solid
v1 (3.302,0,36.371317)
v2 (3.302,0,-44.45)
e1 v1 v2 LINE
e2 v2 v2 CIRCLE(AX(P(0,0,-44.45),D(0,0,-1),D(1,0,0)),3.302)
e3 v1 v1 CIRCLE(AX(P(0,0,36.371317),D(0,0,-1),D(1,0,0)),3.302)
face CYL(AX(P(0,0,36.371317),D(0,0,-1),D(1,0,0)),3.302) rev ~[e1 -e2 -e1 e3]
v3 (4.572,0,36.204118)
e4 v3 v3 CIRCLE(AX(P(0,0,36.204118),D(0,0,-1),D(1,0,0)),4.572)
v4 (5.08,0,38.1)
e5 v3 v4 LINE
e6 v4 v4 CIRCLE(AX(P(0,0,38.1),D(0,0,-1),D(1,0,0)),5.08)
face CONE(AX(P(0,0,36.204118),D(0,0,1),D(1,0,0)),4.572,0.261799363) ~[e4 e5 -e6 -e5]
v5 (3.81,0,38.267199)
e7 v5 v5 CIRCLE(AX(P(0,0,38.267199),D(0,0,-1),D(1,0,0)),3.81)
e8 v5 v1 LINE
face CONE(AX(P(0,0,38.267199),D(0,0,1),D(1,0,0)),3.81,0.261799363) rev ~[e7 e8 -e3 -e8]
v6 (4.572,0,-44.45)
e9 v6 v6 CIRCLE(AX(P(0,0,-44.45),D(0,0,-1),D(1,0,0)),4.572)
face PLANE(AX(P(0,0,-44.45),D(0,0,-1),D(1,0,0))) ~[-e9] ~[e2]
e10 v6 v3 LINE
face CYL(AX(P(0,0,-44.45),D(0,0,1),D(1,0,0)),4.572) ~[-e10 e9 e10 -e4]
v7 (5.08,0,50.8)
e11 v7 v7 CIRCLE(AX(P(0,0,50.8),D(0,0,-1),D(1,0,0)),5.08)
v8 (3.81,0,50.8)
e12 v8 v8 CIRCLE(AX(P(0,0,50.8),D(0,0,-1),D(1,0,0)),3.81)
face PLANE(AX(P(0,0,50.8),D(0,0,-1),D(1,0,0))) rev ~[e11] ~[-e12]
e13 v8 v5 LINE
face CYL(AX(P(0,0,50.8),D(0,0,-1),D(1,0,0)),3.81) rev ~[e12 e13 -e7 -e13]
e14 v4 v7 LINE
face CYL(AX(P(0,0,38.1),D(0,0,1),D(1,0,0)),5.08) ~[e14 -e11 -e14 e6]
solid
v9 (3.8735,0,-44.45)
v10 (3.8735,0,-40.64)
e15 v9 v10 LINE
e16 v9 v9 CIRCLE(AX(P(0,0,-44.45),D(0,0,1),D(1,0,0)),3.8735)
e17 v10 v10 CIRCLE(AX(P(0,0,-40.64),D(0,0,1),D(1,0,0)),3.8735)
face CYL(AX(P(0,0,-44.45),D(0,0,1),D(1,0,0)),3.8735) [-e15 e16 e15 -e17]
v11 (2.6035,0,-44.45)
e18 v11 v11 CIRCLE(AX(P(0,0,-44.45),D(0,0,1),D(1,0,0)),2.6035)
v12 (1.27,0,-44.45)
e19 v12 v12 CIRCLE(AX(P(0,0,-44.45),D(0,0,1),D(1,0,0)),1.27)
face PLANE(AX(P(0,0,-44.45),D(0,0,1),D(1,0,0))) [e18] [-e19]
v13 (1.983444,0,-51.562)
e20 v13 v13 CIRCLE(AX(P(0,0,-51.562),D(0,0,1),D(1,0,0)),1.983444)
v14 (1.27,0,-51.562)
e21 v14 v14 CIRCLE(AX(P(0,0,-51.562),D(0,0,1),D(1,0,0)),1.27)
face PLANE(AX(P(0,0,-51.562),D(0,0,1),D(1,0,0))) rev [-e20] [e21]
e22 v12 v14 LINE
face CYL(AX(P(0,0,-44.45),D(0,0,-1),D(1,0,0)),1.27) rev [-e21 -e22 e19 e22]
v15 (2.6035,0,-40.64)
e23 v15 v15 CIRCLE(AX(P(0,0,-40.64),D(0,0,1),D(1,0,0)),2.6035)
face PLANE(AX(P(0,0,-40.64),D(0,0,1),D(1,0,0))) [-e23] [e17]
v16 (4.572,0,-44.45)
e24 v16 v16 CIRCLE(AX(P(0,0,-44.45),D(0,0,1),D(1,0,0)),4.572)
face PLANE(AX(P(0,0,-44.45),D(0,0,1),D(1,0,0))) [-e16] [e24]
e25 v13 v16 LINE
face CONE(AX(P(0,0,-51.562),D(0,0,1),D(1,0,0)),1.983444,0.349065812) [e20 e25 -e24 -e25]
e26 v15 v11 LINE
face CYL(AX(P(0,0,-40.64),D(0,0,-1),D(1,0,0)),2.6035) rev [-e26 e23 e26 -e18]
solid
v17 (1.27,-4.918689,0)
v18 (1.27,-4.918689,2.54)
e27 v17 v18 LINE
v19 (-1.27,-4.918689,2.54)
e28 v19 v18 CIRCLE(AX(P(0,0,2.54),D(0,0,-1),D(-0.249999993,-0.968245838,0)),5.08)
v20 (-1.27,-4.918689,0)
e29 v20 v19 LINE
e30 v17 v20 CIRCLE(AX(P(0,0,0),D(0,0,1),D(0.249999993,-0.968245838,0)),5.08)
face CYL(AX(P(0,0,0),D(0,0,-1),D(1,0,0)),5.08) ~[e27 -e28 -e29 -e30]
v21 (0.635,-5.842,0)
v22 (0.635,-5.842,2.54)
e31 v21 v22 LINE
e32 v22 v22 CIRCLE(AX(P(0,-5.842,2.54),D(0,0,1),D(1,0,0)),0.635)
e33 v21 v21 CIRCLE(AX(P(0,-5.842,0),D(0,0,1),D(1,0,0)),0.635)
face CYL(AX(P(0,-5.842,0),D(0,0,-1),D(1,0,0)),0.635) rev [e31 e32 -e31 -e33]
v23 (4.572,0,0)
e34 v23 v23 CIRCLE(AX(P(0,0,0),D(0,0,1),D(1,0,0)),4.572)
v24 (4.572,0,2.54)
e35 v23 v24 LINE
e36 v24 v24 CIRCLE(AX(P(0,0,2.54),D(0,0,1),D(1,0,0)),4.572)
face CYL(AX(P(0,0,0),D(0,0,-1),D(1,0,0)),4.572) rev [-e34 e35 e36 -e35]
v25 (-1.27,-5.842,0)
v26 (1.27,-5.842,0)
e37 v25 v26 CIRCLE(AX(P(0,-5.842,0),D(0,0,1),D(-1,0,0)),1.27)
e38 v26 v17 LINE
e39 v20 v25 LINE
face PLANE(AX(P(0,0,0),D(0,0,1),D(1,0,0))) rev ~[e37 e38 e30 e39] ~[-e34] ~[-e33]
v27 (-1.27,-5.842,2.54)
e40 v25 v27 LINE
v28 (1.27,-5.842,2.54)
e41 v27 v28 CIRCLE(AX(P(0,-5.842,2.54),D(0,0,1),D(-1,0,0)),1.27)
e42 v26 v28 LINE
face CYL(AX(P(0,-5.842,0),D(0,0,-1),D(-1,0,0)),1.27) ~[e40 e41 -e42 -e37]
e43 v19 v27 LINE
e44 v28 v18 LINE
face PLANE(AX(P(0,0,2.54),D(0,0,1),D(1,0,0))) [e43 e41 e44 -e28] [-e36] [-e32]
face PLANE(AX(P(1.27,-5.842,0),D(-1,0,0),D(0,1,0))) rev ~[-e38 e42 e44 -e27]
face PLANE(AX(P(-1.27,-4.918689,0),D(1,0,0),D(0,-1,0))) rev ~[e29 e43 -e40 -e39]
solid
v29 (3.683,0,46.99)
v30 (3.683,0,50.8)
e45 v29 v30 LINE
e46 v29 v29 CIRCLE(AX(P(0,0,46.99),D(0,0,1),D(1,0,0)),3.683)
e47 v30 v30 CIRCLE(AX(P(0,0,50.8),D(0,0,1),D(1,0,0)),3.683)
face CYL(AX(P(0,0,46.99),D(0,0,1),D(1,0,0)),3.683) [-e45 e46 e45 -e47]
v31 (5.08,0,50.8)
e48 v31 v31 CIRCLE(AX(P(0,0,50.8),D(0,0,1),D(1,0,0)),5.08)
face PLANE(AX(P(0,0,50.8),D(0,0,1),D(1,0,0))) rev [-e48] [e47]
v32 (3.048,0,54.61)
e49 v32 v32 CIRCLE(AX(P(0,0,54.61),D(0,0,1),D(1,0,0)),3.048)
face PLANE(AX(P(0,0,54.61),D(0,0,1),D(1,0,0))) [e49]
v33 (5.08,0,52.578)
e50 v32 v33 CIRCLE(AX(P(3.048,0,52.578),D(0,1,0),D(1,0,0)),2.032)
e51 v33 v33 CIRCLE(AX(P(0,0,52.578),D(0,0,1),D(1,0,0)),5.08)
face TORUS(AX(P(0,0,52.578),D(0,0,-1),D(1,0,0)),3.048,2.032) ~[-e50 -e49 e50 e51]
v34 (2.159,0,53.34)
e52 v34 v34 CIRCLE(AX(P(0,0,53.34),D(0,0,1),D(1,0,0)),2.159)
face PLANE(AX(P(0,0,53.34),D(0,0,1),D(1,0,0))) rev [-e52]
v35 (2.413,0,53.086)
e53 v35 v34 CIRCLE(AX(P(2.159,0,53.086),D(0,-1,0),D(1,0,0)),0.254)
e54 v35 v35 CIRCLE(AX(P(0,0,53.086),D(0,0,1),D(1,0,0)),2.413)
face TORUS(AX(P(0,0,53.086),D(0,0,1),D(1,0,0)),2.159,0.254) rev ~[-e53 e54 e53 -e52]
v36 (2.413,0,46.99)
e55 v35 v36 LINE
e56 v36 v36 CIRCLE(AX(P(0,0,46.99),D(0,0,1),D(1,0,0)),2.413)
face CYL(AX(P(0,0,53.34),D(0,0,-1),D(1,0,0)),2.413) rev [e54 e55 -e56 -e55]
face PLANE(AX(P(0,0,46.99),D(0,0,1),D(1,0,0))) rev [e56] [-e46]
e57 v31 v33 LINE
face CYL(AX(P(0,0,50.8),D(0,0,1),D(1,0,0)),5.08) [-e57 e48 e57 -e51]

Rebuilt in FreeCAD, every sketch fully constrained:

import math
import FreeCAD as App
import Part
import Sketcher
Q = App.Units.Quantity


def edges_at(feature, points):
    """Names of the edges that pass closest to the given points."""
    edges = feature.Shape.Edges
    near = lambda p: min(range(len(edges)), key=lambda i: edges[i].distToShape(Part.Vertex(*p))[0])
    return sorted({f"Edge{near(p) + 1}" for p in points})


def add_polygon(sketch, points):
    """Adds a closed chain of lines whose ends are joined by coincident constraints."""
    first, n = sketch.GeometryCount, len(points)
    for a, b in zip(points, points[1:] + points[:1]):
        sketch.addGeometry(Part.LineSegment(App.Vector(*a, 0), App.Vector(*b, 0)), False)
    for i in range(n):
        sketch.addConstraint(Sketcher.Constraint("Coincident", first + i, 2, first + (i + 1) % n, 1))

doc = App.newDocument("Part")
body = doc.addObject("PartDesign::Body", "Body")

# Sketch on XZ plane
sketch1 = body.newObject("Sketcher::SketchObject", "Sketch")
sketch1.AttachmentSupport = (doc.getObject("XZ_Plane"), [""])
sketch1.MapMode = "FlatFace"
add_polygon(sketch1, [(5.1, 38.1), (5.1, 50.8), (3.8, 50.8), (3.8, 38.3), (3.3, 36.4), (3.3, -44.5), (4.6, -44.5), (4.6, 36.2)])  # lines 0-7
sketch1.addConstraint([
    Sketcher.Constraint("Vertical", 0),
    Sketcher.Constraint("Horizontal", 1),
    Sketcher.Constraint("Vertical", 2),
    Sketcher.Constraint("Vertical", 4),
    Sketcher.Constraint("Horizontal", 5),
    Sketcher.Constraint("Vertical", 6),
    Sketcher.Constraint("Parallel", 3, 7),
    Sketcher.Constraint("Equal", 1, 5),
    Sketcher.Constraint("DistanceY", 0, 1, 0, 2, Q("0.5 in")),
    Sketcher.Constraint("DistanceY", -1, 1, 0, 2, Q("2 in")),
    Sketcher.Constraint("Angle", 3, Q("-104.999999 deg")),
    Sketcher.Constraint("DistanceX", 1, 2, 1, 1, Q("0.05 in")),
    Sketcher.Constraint("DistanceX", -1, 1, 0, 2, Q("0.2 in")),
    Sketcher.Constraint("DistanceX", -1, 1, 3, 2, Q("0.13 in")),
    Sketcher.Constraint("DistanceY", 4, 2, -1, 1, Q("1.75 in")),
    Sketcher.Constraint("DistanceY", 2, 2, 2, 1, 12.532801),
])
revolution = body.newObject("PartDesign::Revolution", "Revolution")
revolution.Profile = sketch1
revolution.ReferenceAxis = (sketch1, ["V_Axis"])
revolution.Angle = 360
body2 = doc.addObject("PartDesign::Body", "Body001")

# Sketch on XZ plane
sketch2 = body2.newObject("Sketcher::SketchObject", "Sketch001")
sketch2.AttachmentSupport = (doc.getObject("XZ_Plane001"), [""])
sketch2.MapMode = "FlatFace"
add_polygon(sketch2, [(5.1, 54.6), (0, 54.6), (0, 53.3), (2.4, 53.3), (2.4, 47), (3.7, 47), (3.7, 50.8), (5.1, 50.8)])  # lines 0-7
sketch2.addConstraint([
    Sketcher.Constraint("Horizontal", 0),
    Sketcher.Constraint("Vertical", 1),
    Sketcher.Constraint("Horizontal", 2),
    Sketcher.Constraint("Vertical", 3),
    Sketcher.Constraint("Horizontal", 4),
    Sketcher.Constraint("Vertical", 5),
    Sketcher.Constraint("Horizontal", 6),
    Sketcher.Constraint("Vertical", 7),
    Sketcher.Constraint("PointOnObject", 0, 2, -2),
    Sketcher.Constraint("Equal", 4, 1),
    Sketcher.Constraint("Equal", 5, 7),
    Sketcher.Constraint("DistanceX", 0, 2, 0, 1, Q("0.2 in")),
    Sketcher.Constraint("DistanceY", -1, 1, 5, 2, Q("2 in")),
    Sketcher.Constraint("DistanceX", 4, 1, 4, 2, Q("0.05 in")),
    Sketcher.Constraint("DistanceY", 3, 2, 3, 1, Q("0.25 in")),
    Sketcher.Constraint("DistanceX", 2, 1, 2, 2, Q("0.095 in")),
])
revolution2 = body2.newObject("PartDesign::Revolution", "Revolution001")
revolution2.Profile = sketch2
revolution2.ReferenceAxis = (sketch2, ["V_Axis"])
revolution2.Angle = 360
doc.recompute()

fillet = body2.newObject("PartDesign::Fillet", "Fillet")
fillet.Base = (revolution2, edges_at(revolution2, [(-5.08, 0, 54.61)]))
fillet.Radius = Q("0.08 in")
doc.recompute()

fillet2 = body2.newObject("PartDesign::Fillet", "Fillet001")
fillet2.Base = (fillet, edges_at(fillet, [(-2.413, 0, 53.34)]))
fillet2.Radius = Q("0.01 in")
body3 = doc.addObject("PartDesign::Body", "Body002")

# Sketch on XZ plane
sketch3 = body3.newObject("Sketcher::SketchObject", "Sketch002")
sketch3.AttachmentSupport = (doc.getObject("XZ_Plane002"), [""])
sketch3.MapMode = "FlatFace"
add_polygon(sketch3, [(3.9, -44.5), (3.9, -40.6), (2.6, -40.6), (2.6, -44.5), (1.3, -44.5), (1.3, -51.6), (2, -51.6), (4.6, -44.5)])  # lines 0-7
sketch3.addConstraint([
    Sketcher.Constraint("Vertical", 0),
    Sketcher.Constraint("Horizontal", 1),
    Sketcher.Constraint("Vertical", 2),
    Sketcher.Constraint("Horizontal", 3),
    Sketcher.Constraint("Vertical", 4),
    Sketcher.Constraint("Horizontal", 5),
    Sketcher.Constraint("Horizontal", 7),
    Sketcher.Constraint("Horizontal", 3, 2, 6, 2),
    Sketcher.Constraint("Angle", 6, Q("70.000002 deg")),
    Sketcher.Constraint("DistanceX", 1, 2, 1, 1, Q("0.05 in")),
    Sketcher.Constraint("DistanceY", 0, 1, 0, 2, Q("0.15 in")),
    Sketcher.Constraint("DistanceY", 4, 2, 4, 1, Q("0.28 in")),
    Sketcher.Constraint("DistanceY", 0, 2, -1, 1, Q("1.6 in")),
    Sketcher.Constraint("DistanceX", -1, 1, 3, 2, Q("0.05 in")),
    Sketcher.Constraint("DistanceX", -1, 1, 6, 2, Q("0.18 in")),
    Sketcher.Constraint("DistanceX", 3, 2, 3, 1, Q("0.0525 in")),
])
revolution3 = body3.newObject("PartDesign::Revolution", "Revolution002")
revolution3.Profile = sketch3
revolution3.ReferenceAxis = (sketch3, ["V_Axis"])
revolution3.Angle = 360
body4 = doc.addObject("PartDesign::Body", "Body003")

# Sketch on XY plane
sketch4 = body4.newObject("Sketcher::SketchObject", "Sketch003")
sketch4.AttachmentSupport = (doc.getObject("XY_Plane003"), [""])
sketch4.MapMode = "FlatFace"
sketch4.addGeometry([
    Part.Circle(App.Vector(0, 0, 0), App.Vector(0, 0, 1), 5.1),
    Part.Circle(App.Vector(0, 0, 0), App.Vector(0, 0, 1), 4.6),
], False)
sketch4.addConstraint([
    Sketcher.Constraint("Coincident", 0, 3, -1, 1),
    Sketcher.Constraint("Coincident", 1, 3, -1, 1),
    Sketcher.Constraint("Diameter", 0, Q("0.4 in")),
    Sketcher.Constraint("Diameter", 1, Q("0.36 in")),
])
pad1 = body4.newObject("PartDesign::Pad", "Pad")
pad1.Profile = sketch4
pad1.Length = Q("0.1 in")

# Sketch on XY plane
sketch5 = body4.newObject("Sketcher::SketchObject", "Sketch004")
sketch5.AttachmentSupport = (doc.getObject("XY_Plane003"), [""])
sketch5.MapMode = "FlatFace"
sketch5.addGeometry([
    Part.LineSegment(App.Vector(-1.3, -4.9, 0), App.Vector(-1.3, -5.8, 0)),  # 0
    Part.ArcOfCircle(Part.Circle(App.Vector(0, -5.8, 0), App.Vector(0, 0, 1), 1.3), math.radians(180), math.radians(360)),  # 1
    Part.LineSegment(App.Vector(1.3, -5.8, 0), App.Vector(1.3, -4.9, 0)),  # 2
    Part.ArcOfCircle(Part.Circle(App.Vector(0, 0, 0), App.Vector(0, 0, 1), 5.1), math.radians(-104), math.radians(-76)),  # 3
    Part.Circle(App.Vector(0, -5.8, 0), App.Vector(0, 0, 1), 0.6),  # 4
], False)
sketch5.addConstraint([
    Sketcher.Constraint("Tangent", 0, 2, 1, 1),
    Sketcher.Constraint("Tangent", 1, 2, 2, 1),
    Sketcher.Constraint("Coincident", 2, 2, 3, 2),
    Sketcher.Constraint("Coincident", 3, 1, 0, 1),
    Sketcher.Constraint("Vertical", 0),
    Sketcher.Constraint("Vertical", 2),
    Sketcher.Constraint("Coincident", 3, 3, -1, 1),
    Sketcher.Constraint("Coincident", 4, 3, 1, 3),
    Sketcher.Constraint("PointOnObject", 1, 3, -2),
    Sketcher.Constraint("Radius", 3, Q("0.2000002 in")),
    Sketcher.Constraint("Diameter", 4, Q("0.05 in")),
    Sketcher.Constraint("Radius", 1, Q("0.05 in")),
    Sketcher.Constraint("DistanceY", 1, 3, -1, 1, Q("0.23 in")),
])
pad2 = body4.newObject("PartDesign::Pad", "Pad001")
pad2.Profile = sketch5
pad2.Length = Q("0.1 in")

doc.recompute()
